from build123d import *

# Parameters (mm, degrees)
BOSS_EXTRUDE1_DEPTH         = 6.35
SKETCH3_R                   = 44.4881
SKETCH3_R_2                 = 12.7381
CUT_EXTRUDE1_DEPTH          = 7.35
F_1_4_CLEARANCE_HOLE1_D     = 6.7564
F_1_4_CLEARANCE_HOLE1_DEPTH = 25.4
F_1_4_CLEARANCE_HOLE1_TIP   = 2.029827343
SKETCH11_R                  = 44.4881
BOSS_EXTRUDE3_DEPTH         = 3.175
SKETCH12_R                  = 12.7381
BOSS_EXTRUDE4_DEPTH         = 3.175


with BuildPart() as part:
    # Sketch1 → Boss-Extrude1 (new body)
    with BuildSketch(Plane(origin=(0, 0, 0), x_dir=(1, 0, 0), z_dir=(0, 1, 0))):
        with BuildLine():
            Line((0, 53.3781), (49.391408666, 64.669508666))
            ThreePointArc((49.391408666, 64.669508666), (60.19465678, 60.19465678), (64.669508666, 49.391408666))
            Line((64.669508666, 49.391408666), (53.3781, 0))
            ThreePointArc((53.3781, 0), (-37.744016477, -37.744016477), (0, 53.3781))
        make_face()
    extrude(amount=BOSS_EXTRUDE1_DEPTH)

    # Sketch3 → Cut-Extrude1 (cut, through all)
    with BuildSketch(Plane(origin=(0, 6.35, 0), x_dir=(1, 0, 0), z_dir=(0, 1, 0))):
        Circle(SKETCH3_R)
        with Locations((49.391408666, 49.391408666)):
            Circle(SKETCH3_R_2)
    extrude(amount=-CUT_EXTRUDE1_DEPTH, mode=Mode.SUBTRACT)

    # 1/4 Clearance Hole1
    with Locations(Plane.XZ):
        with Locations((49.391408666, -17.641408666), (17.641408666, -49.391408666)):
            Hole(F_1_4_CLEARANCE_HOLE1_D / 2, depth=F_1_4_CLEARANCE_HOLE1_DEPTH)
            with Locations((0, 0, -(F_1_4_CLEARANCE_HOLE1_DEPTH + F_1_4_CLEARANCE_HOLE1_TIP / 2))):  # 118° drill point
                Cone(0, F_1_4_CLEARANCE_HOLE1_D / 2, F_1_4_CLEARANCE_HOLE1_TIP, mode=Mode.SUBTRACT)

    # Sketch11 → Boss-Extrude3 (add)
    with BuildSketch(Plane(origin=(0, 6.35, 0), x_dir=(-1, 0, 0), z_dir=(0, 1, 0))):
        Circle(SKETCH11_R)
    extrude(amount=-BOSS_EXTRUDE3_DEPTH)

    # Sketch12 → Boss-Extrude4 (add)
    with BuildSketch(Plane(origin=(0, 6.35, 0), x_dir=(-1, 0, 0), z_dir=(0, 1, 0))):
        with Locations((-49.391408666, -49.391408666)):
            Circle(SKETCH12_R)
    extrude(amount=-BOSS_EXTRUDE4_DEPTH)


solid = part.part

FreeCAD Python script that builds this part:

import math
import FreeCAD as App
import Part
import Sketcher
from FreeCAD import Vector
Q = App.Units.Quantity

doc = App.newDocument("Part")
body = doc.addObject("PartDesign::Body", "Body")

sketch1 = body.newObject("Sketcher::SketchObject", "Sketch")
sketch1.AttachmentSupport = (doc.getObject("XZ_Plane"), [""])
sketch1.MapMode = "FlatFace"
sketch1.addGeometry([
    Part.LineSegment(Vector(49, -65, 0), Vector(0, -53, 0)),
    Part.ArcOfCircle(Part.Circle(Vector(0, 0, 0), Vector(0, 0, 1), 53), math.radians(0), math.radians(270)),
    Part.LineSegment(Vector(53, 0, 0), Vector(65, -49, 0)),
    Part.ArcOfCircle(Part.Circle(Vector(49, -49, 0), Vector(0, 0, 1), 15), math.radians(-90), math.radians(0)),
], False)
sketch1.addConstraint([
    Sketcher.Constraint("Coincident", 0, 2, 1, 2),
    Sketcher.Constraint("Coincident", 1, 1, 2, 1),
    Sketcher.Constraint("Coincident", 2, 2, 3, 2),
    Sketcher.Constraint("Coincident", 3, 1, 0, 1),
    Sketcher.Constraint("Coincident", 1, 3, -1, 1),
    Sketcher.Constraint("PointOnObject", 0, 2, -2),
    Sketcher.Constraint("PointOnObject", 1, 1, -1),
    Sketcher.Constraint("Horizontal", 3, 3, 2, 2),
    Sketcher.Constraint("Equal", 0, 2),
    Sketcher.Constraint("Radius", 1, Q("2.1015 in")),
    Sketcher.Constraint("Radius", 3, Q("0.6015 in")),
    Sketcher.Constraint("DistanceX", 3, 1, 2, 2, Q("0.6015 in")),
    Sketcher.Constraint("Distance", 0, 50.665641),
])
pad1 = body.newObject("PartDesign::Pad", "Pad")
pad1.Profile = sketch1
pad1.Length = Q("0.25 in")
pad1.Reversed = True

sketch2 = body.newObject("Sketcher::SketchObject", "Sketch001")
sketch2.AttachmentSupport = (doc.getObject("XZ_Plane"), [""])
sketch2.MapMode = "FlatFace"
sketch2.AttachmentOffset = App.Placement(Vector(0, 0, -0.25 * 25.4), App.Rotation())
sketch2.addGeometry([
    Part.Circle(Vector(0, 0, 0), Vector(0, 0, 1), 44),
    Part.Circle(Vector(49, -49, 0), Vector(0, 0, 1), 13),
], False)
sketch2.addConstraint([
    Sketcher.Constraint("Coincident", 0, 3, -1, 1),
    Sketcher.Constraint("Diameter", 0, Q("3.503 in")),
    Sketcher.Constraint("Diameter", 1, Q("1.003 in")),
    Sketcher.Constraint("DistanceX", -1, 1, 1, 3, 49.391409),
    Sketcher.Constraint("DistanceY", 1, 3, -1, 1, 49.391409),
])
pocket1 = body.newObject("PartDesign::Pocket", "Pocket")
pocket1.Profile = sketch2
pocket1.Type = "ThroughAll"
pocket1.Reversed = True

sketch3 = body.newObject("Sketcher::SketchObject", "Sketch002")
sketch3.AttachmentSupport = (doc.getObject("XZ_Plane"), [""])
sketch3.MapMode = "FlatFace"
sketch3.addGeometry([
    Part.Circle(Vector(49.4, -17.6, 0), Vector(0, 0, 1), 3.4),
    Part.Circle(Vector(17.6, -49.4, 0), Vector(0, 0, 1), 3.4),
], False)
sketch3.addConstraint([
    Sketcher.Constraint("Equal", 0, 1),
    Sketcher.Constraint("Diameter", 0, Q("0.266 in")),
    Sketcher.Constraint("DistanceX", 1, 3, 0, 3, Q("1.25 in")),
    Sketcher.Constraint("DistanceY", 1, 3, 0, 3, Q("1.25 in")),
    Sketcher.Constraint("DistanceX", -1, 1, 0, 3, 49.391409),
    Sketcher.Constraint("DistanceY", 0, 3, -1, 1, 17.641409),
])
doc.recompute()
hole = body.newObject("PartDesign::Hole", "Hole")
hole.Profile = sketch3
hole.ThreadType = "None"
hole.Diameter = Q("0.266 in")
hole.DepthType = "Dimension"
hole.Depth = Q("1 in")
hole.DrillPoint = "Angled"
hole.DrillPointAngle = 118

sketch4 = body.newObject("Sketcher::SketchObject", "Sketch003")
sketch4.AttachmentSupport = (doc.getObject("XZ_Plane"), [""])
sketch4.MapMode = "FlatFace"
sketch4.AttachmentOffset = App.Placement(Vector(0, 0, -0.25 * 25.4), App.Rotation())
sketch4.addGeometry(Part.Circle(Vector(0, 0, 0), Vector(0, 0, 1), 44), False)
sketch4.addConstraint([
    Sketcher.Constraint("Coincident", 0, 3, -1, 1),
    Sketcher.Constraint("Diameter", 0, Q("3.503 in")),
])
pad2 = body.newObject("PartDesign::Pad", "Pad001")
pad2.Profile = sketch4
pad2.Length = Q("0.125 in")

sketch5 = body.newObject("Sketcher::SketchObject", "Sketch004")
sketch5.AttachmentSupport = (doc.getObject("XZ_Plane"), [""])
sketch5.MapMode = "FlatFace"
sketch5.AttachmentOffset = App.Placement(Vector(0, 0, -0.25 * 25.4), App.Rotation())
sketch5.addGeometry(Part.Circle(Vector(49, -49, 0), Vector(0, 0, 1), 13), False)
sketch5.addConstraint([
    Sketcher.Constraint("Diameter", 0, Q("1.003 in")),
    Sketcher.Constraint("DistanceX", -1, 1, 0, 3, 49.391409),
    Sketcher.Constraint("DistanceY", 0, 3, -1, 1, 49.391409),
])
pad3 = body.newObject("PartDesign::Pad", "Pad002")
pad3.Profile = sketch5
pad3.Length = Q("0.125 in")

doc.recompute()
